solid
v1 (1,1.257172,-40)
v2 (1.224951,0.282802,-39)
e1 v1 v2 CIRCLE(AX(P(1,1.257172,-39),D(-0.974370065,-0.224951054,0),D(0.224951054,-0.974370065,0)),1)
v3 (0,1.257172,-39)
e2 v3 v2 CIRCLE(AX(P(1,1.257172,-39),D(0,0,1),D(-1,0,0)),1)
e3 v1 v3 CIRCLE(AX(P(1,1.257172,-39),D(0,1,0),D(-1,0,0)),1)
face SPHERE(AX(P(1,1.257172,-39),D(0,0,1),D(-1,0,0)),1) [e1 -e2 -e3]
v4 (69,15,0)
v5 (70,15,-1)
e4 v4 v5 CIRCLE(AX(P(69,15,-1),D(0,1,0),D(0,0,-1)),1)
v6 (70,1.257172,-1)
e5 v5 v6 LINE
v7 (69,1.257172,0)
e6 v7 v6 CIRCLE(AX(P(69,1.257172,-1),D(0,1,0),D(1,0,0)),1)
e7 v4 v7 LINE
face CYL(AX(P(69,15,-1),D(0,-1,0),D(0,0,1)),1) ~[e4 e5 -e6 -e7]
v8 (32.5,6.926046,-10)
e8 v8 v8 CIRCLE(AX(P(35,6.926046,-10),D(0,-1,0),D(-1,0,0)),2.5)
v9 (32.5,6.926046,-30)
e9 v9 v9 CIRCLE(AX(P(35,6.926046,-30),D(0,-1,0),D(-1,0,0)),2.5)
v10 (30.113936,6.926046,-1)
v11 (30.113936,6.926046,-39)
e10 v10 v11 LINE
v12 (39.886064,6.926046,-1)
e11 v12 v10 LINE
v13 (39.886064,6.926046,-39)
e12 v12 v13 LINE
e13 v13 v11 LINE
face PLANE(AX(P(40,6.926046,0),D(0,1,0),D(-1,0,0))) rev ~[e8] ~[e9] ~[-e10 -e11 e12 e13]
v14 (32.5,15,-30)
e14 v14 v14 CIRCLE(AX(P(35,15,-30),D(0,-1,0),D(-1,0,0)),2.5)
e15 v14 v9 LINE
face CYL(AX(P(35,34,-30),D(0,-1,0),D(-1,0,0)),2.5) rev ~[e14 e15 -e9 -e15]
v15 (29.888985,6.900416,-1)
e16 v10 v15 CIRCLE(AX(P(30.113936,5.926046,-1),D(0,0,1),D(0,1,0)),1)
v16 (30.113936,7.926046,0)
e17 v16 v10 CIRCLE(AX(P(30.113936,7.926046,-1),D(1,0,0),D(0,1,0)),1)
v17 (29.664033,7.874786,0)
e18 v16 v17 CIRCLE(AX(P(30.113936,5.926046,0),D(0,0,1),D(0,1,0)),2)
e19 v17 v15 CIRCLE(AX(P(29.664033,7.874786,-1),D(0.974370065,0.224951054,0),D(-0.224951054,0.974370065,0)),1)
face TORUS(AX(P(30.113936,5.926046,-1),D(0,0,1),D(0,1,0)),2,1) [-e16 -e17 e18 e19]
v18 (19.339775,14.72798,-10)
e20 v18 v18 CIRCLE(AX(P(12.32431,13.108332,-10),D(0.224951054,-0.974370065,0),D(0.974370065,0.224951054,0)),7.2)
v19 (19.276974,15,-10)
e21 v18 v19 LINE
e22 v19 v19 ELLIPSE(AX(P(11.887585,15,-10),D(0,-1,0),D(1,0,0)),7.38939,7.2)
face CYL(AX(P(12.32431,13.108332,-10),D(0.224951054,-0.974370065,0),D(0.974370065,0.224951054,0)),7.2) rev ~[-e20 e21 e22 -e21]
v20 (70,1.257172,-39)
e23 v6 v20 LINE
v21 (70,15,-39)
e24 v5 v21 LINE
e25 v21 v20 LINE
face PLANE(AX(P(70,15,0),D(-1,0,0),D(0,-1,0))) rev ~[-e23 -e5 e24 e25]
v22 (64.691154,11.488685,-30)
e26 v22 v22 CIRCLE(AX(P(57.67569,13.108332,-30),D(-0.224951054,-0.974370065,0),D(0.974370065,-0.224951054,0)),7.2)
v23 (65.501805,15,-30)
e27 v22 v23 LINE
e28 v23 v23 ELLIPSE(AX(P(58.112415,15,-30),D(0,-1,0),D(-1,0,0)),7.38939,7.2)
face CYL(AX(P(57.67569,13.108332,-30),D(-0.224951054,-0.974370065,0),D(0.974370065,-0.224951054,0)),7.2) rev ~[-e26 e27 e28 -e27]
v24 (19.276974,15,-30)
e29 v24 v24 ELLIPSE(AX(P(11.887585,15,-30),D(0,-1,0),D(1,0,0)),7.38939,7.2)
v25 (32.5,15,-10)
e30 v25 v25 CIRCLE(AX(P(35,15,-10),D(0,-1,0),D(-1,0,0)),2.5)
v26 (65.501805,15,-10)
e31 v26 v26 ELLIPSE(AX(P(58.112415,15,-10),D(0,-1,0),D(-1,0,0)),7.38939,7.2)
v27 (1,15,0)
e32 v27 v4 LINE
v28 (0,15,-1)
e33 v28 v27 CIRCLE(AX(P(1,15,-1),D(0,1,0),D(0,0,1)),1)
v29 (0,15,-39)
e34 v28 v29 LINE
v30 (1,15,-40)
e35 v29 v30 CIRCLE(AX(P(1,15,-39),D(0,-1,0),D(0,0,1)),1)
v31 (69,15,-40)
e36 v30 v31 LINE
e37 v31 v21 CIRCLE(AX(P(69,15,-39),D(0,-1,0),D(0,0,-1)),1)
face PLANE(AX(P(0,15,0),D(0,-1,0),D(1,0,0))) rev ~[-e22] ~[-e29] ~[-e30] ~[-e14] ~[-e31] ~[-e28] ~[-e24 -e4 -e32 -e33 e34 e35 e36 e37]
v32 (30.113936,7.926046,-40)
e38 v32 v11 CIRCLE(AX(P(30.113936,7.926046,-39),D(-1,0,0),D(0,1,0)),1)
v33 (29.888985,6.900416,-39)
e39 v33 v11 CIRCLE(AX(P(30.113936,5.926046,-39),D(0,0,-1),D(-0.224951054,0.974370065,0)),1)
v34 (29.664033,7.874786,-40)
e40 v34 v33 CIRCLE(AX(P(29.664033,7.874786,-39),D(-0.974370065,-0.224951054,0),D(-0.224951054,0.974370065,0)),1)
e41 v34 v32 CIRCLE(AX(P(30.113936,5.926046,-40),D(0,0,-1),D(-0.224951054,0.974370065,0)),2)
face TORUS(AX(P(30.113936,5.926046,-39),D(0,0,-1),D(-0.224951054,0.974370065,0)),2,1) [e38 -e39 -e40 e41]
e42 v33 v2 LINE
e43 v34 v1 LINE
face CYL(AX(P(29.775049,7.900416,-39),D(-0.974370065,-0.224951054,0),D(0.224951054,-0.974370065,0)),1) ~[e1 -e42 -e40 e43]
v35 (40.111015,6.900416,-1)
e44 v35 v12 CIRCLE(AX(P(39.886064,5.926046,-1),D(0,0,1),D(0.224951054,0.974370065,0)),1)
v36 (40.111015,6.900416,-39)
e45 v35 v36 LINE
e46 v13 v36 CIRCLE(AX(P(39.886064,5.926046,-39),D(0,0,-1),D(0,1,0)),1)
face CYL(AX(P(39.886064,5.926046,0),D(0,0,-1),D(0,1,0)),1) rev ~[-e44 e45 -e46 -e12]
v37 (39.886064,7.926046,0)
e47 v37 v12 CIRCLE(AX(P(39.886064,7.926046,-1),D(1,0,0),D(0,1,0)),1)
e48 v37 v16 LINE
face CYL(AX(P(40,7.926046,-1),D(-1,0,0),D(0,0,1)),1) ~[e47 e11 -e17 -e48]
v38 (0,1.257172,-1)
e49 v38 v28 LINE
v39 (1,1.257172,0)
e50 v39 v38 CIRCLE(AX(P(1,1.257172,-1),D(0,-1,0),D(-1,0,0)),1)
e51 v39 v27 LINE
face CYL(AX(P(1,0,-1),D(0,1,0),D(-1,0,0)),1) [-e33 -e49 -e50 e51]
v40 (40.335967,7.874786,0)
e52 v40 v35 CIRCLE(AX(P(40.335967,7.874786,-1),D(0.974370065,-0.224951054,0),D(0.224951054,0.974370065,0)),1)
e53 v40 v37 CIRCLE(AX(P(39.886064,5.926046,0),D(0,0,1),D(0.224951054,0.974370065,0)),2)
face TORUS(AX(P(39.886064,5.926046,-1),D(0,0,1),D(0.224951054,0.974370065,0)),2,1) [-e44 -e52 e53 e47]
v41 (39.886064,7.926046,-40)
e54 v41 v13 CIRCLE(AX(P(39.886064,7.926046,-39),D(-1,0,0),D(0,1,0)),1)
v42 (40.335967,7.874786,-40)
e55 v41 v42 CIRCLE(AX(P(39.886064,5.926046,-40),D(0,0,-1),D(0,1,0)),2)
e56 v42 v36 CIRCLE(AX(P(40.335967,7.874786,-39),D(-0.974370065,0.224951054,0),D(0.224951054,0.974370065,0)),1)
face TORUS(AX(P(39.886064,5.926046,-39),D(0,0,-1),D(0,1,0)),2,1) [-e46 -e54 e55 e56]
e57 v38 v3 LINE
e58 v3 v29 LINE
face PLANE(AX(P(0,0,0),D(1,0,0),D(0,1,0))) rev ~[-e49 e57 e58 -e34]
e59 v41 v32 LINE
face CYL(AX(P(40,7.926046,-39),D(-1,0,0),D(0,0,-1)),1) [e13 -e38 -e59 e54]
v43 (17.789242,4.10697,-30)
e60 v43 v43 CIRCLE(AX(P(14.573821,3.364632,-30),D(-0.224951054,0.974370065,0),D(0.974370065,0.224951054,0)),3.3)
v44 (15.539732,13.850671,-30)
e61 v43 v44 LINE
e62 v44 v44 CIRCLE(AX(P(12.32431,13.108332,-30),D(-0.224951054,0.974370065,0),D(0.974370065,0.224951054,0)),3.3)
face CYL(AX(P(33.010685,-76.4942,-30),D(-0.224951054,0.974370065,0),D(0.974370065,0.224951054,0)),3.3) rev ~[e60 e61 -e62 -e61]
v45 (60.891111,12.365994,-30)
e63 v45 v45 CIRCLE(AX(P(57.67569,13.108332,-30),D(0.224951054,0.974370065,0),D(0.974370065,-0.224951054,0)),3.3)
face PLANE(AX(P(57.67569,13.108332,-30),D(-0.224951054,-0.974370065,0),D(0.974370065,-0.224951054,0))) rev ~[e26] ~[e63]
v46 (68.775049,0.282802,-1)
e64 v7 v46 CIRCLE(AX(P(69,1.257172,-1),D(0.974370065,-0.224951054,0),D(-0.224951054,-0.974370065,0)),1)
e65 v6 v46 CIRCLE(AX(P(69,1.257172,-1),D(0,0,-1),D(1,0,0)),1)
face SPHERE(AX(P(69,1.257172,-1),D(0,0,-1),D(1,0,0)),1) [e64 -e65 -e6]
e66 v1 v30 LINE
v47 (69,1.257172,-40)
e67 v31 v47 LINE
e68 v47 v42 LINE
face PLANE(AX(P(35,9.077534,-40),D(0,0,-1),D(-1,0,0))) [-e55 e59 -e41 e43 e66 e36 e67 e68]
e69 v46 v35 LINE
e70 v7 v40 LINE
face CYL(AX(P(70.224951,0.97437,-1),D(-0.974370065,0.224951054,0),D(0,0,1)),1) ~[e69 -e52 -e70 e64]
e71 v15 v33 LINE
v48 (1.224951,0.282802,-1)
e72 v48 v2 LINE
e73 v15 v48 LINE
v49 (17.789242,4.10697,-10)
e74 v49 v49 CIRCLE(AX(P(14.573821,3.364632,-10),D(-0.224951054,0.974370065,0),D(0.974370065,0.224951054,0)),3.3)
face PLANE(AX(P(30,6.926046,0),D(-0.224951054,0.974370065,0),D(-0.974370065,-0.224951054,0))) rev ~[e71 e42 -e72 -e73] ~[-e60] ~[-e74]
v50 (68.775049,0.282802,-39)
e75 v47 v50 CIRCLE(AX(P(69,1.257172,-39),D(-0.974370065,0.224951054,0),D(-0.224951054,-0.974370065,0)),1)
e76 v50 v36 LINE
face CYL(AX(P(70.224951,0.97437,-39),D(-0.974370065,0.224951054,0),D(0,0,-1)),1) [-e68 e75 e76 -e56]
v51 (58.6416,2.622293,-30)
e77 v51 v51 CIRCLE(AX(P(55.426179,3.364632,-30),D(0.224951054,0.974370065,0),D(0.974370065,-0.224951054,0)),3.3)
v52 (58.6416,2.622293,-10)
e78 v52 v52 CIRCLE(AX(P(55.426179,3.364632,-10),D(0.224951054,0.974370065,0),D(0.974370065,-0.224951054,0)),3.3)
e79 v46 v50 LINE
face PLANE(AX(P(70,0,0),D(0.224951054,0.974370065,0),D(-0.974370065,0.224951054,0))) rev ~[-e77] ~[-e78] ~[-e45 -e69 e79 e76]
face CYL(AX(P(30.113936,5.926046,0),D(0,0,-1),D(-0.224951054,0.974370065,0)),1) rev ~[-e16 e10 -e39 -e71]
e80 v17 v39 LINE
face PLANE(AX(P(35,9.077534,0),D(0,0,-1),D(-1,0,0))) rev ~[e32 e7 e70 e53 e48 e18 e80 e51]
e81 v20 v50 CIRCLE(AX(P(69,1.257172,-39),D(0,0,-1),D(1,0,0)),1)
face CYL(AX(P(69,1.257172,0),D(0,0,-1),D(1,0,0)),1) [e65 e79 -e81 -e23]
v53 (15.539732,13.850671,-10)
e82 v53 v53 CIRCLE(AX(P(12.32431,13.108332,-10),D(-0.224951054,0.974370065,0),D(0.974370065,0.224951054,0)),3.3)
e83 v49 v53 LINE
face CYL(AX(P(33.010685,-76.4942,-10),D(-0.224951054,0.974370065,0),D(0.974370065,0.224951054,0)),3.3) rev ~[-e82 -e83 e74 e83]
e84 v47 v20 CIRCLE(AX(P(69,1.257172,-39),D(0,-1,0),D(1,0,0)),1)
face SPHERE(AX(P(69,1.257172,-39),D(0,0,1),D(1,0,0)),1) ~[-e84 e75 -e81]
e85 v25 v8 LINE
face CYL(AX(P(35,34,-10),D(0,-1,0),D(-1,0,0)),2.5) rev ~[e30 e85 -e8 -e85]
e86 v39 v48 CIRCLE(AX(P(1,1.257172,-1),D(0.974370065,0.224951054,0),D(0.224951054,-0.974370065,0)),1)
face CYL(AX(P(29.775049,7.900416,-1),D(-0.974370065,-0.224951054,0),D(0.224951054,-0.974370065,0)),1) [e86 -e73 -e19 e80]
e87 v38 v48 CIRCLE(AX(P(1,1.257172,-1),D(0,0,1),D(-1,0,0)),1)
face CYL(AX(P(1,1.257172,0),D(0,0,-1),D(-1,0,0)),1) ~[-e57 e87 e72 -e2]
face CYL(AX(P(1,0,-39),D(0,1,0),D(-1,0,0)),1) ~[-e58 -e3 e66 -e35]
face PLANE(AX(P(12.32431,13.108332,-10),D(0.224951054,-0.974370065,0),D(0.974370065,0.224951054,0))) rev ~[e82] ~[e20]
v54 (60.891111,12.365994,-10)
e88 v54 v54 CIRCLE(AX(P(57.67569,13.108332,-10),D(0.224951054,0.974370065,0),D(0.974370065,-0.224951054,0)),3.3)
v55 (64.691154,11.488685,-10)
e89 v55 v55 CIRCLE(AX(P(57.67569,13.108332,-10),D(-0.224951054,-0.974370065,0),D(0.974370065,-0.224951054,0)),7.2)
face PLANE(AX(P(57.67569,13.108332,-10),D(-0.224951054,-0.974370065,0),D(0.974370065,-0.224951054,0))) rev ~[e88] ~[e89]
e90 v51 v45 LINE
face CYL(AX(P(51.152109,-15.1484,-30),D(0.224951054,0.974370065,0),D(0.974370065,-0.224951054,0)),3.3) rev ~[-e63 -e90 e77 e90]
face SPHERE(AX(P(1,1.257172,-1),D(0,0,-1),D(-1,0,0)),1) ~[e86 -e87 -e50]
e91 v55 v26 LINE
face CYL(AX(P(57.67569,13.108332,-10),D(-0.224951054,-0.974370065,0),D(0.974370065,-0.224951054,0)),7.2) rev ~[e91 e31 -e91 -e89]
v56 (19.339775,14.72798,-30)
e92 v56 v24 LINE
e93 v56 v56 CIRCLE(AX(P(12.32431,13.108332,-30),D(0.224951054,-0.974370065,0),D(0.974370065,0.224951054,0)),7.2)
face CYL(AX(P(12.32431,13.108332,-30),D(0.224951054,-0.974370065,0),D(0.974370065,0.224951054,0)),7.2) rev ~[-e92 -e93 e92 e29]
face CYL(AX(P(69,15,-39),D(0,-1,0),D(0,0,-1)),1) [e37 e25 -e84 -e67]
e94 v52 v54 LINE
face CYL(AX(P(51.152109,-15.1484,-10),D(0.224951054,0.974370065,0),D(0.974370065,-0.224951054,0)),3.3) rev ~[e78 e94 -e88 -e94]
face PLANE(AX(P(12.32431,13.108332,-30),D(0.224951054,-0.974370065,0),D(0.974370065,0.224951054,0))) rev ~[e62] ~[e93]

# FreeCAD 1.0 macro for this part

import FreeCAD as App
import Part
import Sketcher
Q = App.Units.Quantity


def edges_at(feature, points):
    """Names of the edges that pass closest to the given points."""
    edges = feature.Shape.Edges
    near = lambda p: min(range(len(edges)), key=lambda i: edges[i].distToShape(Part.Vertex(*p))[0])
    return sorted({f"Edge{near(p) + 1}" for p in points})


def add_polygon(sketch, points):
    """Adds a closed chain of lines whose ends are joined by coincident constraints."""
    first, n = sketch.GeometryCount, len(points)
    for a, b in zip(points, points[1:] + points[:1]):
        sketch.addGeometry(Part.LineSegment(App.Vector(*a, 0), App.Vector(*b, 0)), False)
    for i in range(n):
        sketch.addConstraint(Sketcher.Constraint("Coincident", first + i, 2, first + (i + 1) % n, 1))

doc = App.newDocument("Part")
body = doc.addObject("PartDesign::Body", "Body")

sketch1 = body.newObject("Sketcher::SketchObject", "Sketch")
sketch1.AttachmentSupport = (doc.getObject("XY_Plane"), [""])
sketch1.MapMode = "FlatFace"
add_polygon(sketch1, [(0, 15), (0, 0), (30, 7), (40, 7), (70, 0), (70, 15)])
sketch1.addConstraint([
    Sketcher.Constraint("Vertical", 0),
    Sketcher.Constraint("Horizontal", 2),
    Sketcher.Constraint("Vertical", 4),
    Sketcher.Constraint("Horizontal", 5),
    Sketcher.Constraint("Coincident", 0, 2, -1, 1),
    Sketcher.Constraint("PointOnObject", 3, 2, -1),
    Sketcher.Constraint("Equal", 1, 3),
    Sketcher.Constraint("DistanceX", 2, 1, 2, 2, 10.0),
    Sketcher.Constraint("DistanceX", 5, 2, 5, 1, 70.0),
    Sketcher.Constraint("DistanceY", 0, 2, 0, 1, 15.0),
    Sketcher.Constraint("Angle", 1, Q("13 deg")),
])
pad1 = body.newObject("PartDesign::Pad", "Pad")
pad1.Profile = sketch1
pad1.Length = 40
pad1.Reversed = True

sketch2 = body.newObject("Sketcher::SketchObject", "Sketch001")
sketch2.AttachmentSupport = (doc.getObject("XZ_Plane"), [""])
sketch2.MapMode = "FlatFace"
sketch2.AttachmentOffset = App.Placement(App.Vector(0, 0, -15), App.Rotation())
sketch2.addGeometry([
    Part.Circle(App.Vector(35, -10, 0), App.Vector(0, 0, 1), 2.5),
    Part.Circle(App.Vector(35, -30, 0), App.Vector(0, 0, 1), 2.5),
], False)
sketch2.addConstraint([
    Sketcher.Constraint("Equal", 0, 1),
    Sketcher.Constraint("Vertical", 0, 3, 1, 3),
    Sketcher.Constraint("Diameter", 0, 5.0),
    Sketcher.Constraint("DistanceX", -1, 1, 0, 3, 35.0),
    Sketcher.Constraint("DistanceY", 0, 3, -1, 1, 10.0),
    Sketcher.Constraint("DistanceY", 1, 3, -1, 1, 30.0),
])
doc.recompute()
hole = body.newObject("PartDesign::Hole", "Hole")
hole.Profile = sketch2
hole.ThreadType = "None"
hole.Diameter = 5
hole.DepthType = "Dimension"
hole.Depth = 19
hole.DrillPoint = "Angled"
hole.DrillPointAngle = 118
hole.Reversed = True
doc.recompute()

fillet = body.newObject("PartDesign::Fillet", "Fillet")
fillet.Base = (hole, edges_at(hole, [
    (55, 3.463, -40),
    (0, 0, -20),
    (70, 0, -20),
    (40, 6.926, -20),
    (30, 6.926, -20),
    (70, 7.5, -40),
    (0, 7.5, -40),
    (15, 3.463, -40),
    (0, 7.5, 0),
    (70, 7.5, 0),
    (35, 6.926, -40),
    (55, 3.463, 0),
    (35, 6.926, 0),
    (15, 3.463, 0),
]))
fillet.Radius = 1

sketch3 = body.newObject("Sketcher::SketchObject", "Sketch002")
sketch3.Placement = App.Placement(App.Vector(0, 0, 0), App.Rotation(App.Vector(-0.974370065, -0.224951054, 0), App.Vector(0, 0, -1), App.Vector(0.224951054, -0.974370065, 0), "ZXY"))
sketch3.addGeometry([
    Part.Circle(App.Vector(-15, 10, 0), App.Vector(0, 0, 1), 3.3),
    Part.Circle(App.Vector(-15, 30, 0), App.Vector(0, 0, 1), 3.3),
], False)
sketch3.addConstraint([
    Sketcher.Constraint("Equal", 0, 1),
    Sketcher.Constraint("Vertical", 0, 3, 1, 3),
    Sketcher.Constraint("Diameter", 0, 6.6),
    Sketcher.Constraint("DistanceY", -1, 1, 0, 3, 10.0),
    Sketcher.Constraint("DistanceY", -1, 1, 1, 3, 30.0),
    Sketcher.Constraint("DistanceX", 0, 3, -1, 1, 14.957172),
])
doc.recompute()
hole2 = body.newObject("PartDesign::Hole", "Hole001")
hole2.Profile = sketch3
hole2.ThreadType = "None"
hole2.Diameter = 6.6
hole2.DepthType = "ThroughAll"

sketch4 = body.newObject("Sketcher::SketchObject", "Sketch003")
sketch4.Placement = App.Placement(App.Vector(3.542208, 15.34299, 0), App.Rotation(App.Vector(-0.974370065, 0.224951054, 0), App.Vector(0, 0, -1), App.Vector(-0.224951054, -0.974370065, 0), "ZXY"))
sketch4.addGeometry([
    Part.Circle(App.Vector(-53.2, 10, 0), App.Vector(0, 0, 1), 3.3),
    Part.Circle(App.Vector(-53.2, 30, 0), App.Vector(0, 0, 1), 3.3),
], False)
sketch4.addConstraint([
    Sketcher.Constraint("Equal", 0, 1),
    Sketcher.Constraint("Vertical", 0, 3, 1, 3),
    Sketcher.Constraint("Diameter", 0, 6.6),
    Sketcher.Constraint("DistanceY", -1, 1, 0, 3, 10.0),
    Sketcher.Constraint("DistanceY", -1, 1, 1, 3, 30.0),
    Sketcher.Constraint("DistanceX", 0, 3, -1, 1, 53.248732),
])
doc.recompute()
hole3 = body.newObject("PartDesign::Hole", "Hole002")
hole3.Profile = sketch4
hole3.ThreadType = "None"
hole3.Diameter = 6.6
hole3.DepthType = "Dimension"
hole3.Depth = 19
hole3.DrillPoint = "Angled"
hole3.DrillPointAngle = 118

sketch5 = body.newObject("Sketcher::SketchObject", "Sketch004")
sketch5.Placement = App.Placement(App.Vector(-2.249511, 9.743701, 0), App.Rotation(App.Vector(0.974370065, 0.224951054, 0), App.Vector(0, 0, 1), App.Vector(0.224951054, -0.974370065, 0), "ZXY"))
sketch5.addGeometry([
    Part.Circle(App.Vector(15, -10, 0), App.Vector(0, 0, 1), 7),
    Part.Circle(App.Vector(15, -30, 0), App.Vector(0, 0, 1), 7),
], False)
sketch5.addConstraint([
    Sketcher.Constraint("Equal", 0, 1),
    Sketcher.Constraint("Vertical", 0, 3, 1, 3),
    Sketcher.Constraint("Diameter", 0, 14.4),
    Sketcher.Constraint("DistanceY", 0, 3, -1, 1, 10.0),
    Sketcher.Constraint("DistanceY", 1, 3, -1, 1, 30.0),
    Sketcher.Constraint("DistanceX", -1, 1, 0, 3, 14.957172),
])
pocket1 = body.newObject("PartDesign::Pocket", "Pocket")
pocket1.Profile = sketch5
pocket1.Type = "ThroughAll"

sketch6 = body.newObject("Sketcher::SketchObject", "Sketch005")
sketch6.Placement = App.Placement(App.Vector(5.791719, 25.086691, 0), App.Rotation(App.Vector(0.974370065, -0.224951054, 0), App.Vector(0, 0, 1), App.Vector(-0.224951054, -0.974370065, 0), "ZXY"))
sketch6.addGeometry([
    Part.Circle(App.Vector(53, -10, 0), App.Vector(0, 0, 1), 7),
    Part.Circle(App.Vector(53, -30, 0), App.Vector(0, 0, 1), 7),
], False)
sketch6.addConstraint([
    Sketcher.Constraint("Equal", 0, 1),
    Sketcher.Constraint("Vertical", 0, 3, 1, 3),
    Sketcher.Constraint("Diameter", 0, 14.4),
    Sketcher.Constraint("DistanceY", 0, 3, -1, 1, 10.0),
    Sketcher.Constraint("DistanceY", 1, 3, -1, 1, 30.0),
    Sketcher.Constraint("DistanceX", -1, 1, 0, 3, 53.248732),
])
pocket2 = body.newObject("PartDesign::Pocket", "Pocket001")
pocket2.Profile = sketch6
pocket2.Type = "ThroughAll"

doc.recompute()
